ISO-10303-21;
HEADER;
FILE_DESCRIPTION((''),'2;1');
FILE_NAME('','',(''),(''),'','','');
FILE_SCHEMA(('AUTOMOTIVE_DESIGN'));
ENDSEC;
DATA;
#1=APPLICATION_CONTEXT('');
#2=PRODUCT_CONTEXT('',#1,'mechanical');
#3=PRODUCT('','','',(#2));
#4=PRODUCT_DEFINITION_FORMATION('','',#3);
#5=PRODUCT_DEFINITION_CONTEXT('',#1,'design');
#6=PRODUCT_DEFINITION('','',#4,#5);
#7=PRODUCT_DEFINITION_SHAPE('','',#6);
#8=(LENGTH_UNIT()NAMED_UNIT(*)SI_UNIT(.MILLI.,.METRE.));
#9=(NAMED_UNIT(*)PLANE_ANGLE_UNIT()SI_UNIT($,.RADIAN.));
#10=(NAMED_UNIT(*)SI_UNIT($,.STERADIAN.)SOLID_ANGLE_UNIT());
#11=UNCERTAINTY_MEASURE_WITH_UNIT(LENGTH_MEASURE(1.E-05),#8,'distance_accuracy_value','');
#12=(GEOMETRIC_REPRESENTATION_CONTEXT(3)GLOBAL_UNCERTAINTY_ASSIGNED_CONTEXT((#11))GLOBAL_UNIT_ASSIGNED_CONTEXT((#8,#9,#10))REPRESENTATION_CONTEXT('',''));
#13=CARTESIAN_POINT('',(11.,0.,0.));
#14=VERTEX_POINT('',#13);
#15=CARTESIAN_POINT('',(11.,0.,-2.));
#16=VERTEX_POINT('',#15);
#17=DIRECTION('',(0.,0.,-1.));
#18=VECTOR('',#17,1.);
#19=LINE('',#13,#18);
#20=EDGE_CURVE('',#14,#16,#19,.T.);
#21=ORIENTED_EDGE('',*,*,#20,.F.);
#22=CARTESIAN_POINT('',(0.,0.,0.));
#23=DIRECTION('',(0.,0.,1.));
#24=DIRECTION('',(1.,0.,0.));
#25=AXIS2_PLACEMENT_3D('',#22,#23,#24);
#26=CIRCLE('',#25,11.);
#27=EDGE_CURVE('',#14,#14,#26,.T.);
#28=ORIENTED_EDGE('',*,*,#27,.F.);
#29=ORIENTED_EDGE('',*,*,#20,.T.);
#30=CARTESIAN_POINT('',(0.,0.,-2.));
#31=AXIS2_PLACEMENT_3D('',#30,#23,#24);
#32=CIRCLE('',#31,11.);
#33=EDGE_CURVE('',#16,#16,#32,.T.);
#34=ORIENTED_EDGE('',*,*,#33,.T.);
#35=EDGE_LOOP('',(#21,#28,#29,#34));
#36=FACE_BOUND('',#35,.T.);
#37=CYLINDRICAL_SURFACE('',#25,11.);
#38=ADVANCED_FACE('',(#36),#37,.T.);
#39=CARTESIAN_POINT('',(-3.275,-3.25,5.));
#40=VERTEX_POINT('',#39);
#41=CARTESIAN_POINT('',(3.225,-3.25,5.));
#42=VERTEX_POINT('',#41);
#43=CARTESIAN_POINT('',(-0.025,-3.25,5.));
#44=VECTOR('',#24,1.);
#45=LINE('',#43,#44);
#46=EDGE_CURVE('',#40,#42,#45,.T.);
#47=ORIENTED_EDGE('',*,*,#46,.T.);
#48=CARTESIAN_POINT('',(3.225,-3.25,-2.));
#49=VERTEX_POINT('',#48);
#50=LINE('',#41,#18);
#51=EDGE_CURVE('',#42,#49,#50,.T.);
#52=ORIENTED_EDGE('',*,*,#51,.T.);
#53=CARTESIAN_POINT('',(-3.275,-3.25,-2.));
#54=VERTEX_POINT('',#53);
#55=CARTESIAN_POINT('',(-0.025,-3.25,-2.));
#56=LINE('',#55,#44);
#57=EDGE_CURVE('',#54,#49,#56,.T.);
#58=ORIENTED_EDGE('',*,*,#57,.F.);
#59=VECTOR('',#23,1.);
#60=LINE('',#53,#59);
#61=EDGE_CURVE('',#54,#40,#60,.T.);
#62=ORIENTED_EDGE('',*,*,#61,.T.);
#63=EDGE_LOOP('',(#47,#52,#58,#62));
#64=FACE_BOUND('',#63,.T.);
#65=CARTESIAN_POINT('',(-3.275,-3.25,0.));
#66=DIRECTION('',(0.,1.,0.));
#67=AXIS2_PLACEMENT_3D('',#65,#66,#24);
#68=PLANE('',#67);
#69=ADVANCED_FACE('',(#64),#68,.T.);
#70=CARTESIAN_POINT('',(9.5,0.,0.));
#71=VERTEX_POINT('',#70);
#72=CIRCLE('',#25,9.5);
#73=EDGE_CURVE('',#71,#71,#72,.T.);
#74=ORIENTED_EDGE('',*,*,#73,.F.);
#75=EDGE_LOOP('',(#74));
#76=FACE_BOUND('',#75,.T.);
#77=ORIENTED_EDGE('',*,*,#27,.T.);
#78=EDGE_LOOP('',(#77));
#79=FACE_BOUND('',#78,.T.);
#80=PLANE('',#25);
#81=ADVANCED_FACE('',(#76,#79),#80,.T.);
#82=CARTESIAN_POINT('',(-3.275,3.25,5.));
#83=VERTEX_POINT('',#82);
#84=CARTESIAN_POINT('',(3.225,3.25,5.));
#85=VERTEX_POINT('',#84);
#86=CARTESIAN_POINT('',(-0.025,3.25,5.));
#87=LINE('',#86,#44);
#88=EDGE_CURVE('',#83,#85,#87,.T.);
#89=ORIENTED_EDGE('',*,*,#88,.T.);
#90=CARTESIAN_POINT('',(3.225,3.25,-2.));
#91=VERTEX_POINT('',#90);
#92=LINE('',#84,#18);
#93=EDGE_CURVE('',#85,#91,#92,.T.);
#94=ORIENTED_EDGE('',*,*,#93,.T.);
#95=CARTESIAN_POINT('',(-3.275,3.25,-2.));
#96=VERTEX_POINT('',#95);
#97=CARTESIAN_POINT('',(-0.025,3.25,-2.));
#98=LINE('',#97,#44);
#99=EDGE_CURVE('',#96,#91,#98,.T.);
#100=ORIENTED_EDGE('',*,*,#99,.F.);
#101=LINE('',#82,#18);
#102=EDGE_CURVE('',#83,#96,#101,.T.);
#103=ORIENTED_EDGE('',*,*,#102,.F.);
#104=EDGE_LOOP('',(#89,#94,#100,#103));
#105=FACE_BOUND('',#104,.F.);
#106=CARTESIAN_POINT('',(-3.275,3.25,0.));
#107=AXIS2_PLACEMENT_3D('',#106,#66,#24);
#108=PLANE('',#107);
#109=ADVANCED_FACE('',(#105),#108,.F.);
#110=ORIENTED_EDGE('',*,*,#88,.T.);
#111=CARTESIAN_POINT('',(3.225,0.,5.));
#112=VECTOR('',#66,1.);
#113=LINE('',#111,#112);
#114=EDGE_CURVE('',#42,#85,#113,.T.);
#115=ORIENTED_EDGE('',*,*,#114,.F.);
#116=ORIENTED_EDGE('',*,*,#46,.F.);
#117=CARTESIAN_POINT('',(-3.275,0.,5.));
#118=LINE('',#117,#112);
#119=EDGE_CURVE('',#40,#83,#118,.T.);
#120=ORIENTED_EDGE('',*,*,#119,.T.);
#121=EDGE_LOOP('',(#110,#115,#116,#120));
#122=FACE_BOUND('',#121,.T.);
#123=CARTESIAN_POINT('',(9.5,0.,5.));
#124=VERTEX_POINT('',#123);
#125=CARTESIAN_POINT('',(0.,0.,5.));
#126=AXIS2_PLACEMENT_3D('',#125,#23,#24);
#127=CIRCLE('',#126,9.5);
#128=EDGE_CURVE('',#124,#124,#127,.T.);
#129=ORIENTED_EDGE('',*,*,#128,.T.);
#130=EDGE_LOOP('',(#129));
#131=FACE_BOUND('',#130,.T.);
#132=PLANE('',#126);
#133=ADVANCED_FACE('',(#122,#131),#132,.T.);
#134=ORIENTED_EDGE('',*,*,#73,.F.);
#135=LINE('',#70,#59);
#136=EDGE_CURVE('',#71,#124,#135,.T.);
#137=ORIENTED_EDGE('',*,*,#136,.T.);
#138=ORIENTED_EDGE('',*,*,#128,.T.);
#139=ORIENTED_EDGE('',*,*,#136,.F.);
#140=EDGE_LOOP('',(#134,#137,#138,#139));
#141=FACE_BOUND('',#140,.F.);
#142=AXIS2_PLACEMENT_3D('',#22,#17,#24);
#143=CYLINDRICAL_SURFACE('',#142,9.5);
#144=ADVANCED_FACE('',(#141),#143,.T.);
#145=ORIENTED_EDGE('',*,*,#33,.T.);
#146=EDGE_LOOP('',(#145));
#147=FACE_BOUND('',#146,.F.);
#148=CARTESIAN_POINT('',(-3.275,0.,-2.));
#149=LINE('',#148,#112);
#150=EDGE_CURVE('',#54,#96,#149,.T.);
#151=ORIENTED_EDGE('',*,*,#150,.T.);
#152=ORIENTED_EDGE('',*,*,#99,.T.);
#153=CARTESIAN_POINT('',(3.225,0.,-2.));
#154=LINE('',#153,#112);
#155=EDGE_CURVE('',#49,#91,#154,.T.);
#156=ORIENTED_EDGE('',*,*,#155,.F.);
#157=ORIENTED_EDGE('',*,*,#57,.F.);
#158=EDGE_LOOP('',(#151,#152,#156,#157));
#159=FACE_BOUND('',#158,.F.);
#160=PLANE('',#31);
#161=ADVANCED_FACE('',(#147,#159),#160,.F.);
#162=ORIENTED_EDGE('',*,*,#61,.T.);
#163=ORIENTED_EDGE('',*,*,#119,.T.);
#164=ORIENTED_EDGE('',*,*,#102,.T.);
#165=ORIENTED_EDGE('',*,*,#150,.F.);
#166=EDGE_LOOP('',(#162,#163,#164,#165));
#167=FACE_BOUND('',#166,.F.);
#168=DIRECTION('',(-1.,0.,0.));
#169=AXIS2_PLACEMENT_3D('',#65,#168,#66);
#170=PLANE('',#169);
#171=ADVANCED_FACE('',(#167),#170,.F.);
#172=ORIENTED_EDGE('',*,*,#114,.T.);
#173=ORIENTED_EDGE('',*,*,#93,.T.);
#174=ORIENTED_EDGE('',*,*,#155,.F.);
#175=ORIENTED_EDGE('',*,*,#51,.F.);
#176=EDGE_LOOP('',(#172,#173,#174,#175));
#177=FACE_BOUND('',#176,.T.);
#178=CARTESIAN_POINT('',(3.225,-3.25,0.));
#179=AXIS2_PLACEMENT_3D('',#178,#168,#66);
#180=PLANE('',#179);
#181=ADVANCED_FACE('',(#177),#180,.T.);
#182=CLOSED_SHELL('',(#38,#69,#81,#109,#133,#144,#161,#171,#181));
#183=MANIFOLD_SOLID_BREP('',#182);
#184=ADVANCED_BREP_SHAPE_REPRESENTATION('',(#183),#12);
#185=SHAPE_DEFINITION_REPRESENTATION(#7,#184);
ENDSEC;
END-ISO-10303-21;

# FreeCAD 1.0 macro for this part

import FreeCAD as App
import Part
import Sketcher
Q = App.Units.Quantity


def add_polygon(sketch, points):
    """Adds a closed chain of lines whose ends are joined by coincident constraints."""
    first, n = sketch.GeometryCount, len(points)
    for a, b in zip(points, points[1:] + points[:1]):
        sketch.addGeometry(Part.LineSegment(App.Vector(*a, 0), App.Vector(*b, 0)), False)
    for i in range(n):
        sketch.addConstraint(Sketcher.Constraint("Coincident", first + i, 2, first + (i + 1) % n, 1))

doc = App.newDocument("Part")
body = doc.addObject("PartDesign::Body", "Body")

sketch1 = body.newObject("Sketcher::SketchObject", "Sketch")
sketch1.AttachmentSupport = (doc.getObject("XY_Plane"), [""])
sketch1.MapMode = "FlatFace"
sketch1.addGeometry(Part.Circle(App.Vector(0, 0, 0), App.Vector(0, 0, 1), 11), False)
add_polygon(sketch1, [(3.225, -3.25), (-3.275, -3.25), (-3.275, 3.25), (3.225, 3.25)])
sketch1.addConstraint([
    Sketcher.Constraint("Horizontal", 1),
    Sketcher.Constraint("Vertical", 2),
    Sketcher.Constraint("Horizontal", 3),
    Sketcher.Constraint("Vertical", 4),
    Sketcher.Constraint("Coincident", 0, 3, -1, 1),
    Sketcher.Constraint("Equal", 3, 2),
    Sketcher.Constraint("Diameter", 0, Q("22 mm")),
    Sketcher.Constraint("DistanceX", 1, 2, 1, 1, Q("6.5 mm")),
    Sketcher.Constraint("DistanceY", 1, 2, -1, 1, Q("3.25 mm")),
    Sketcher.Constraint("DistanceX", 1, 2, -1, 1, Q("3.275 mm")),
])
pad1 = body.newObject("PartDesign::Pad", "Pad")
pad1.Profile = sketch1
pad1.Length = 2
pad1.Reversed = True

sketch2 = body.newObject("Sketcher::SketchObject", "Sketch001")
sketch2.AttachmentSupport = (doc.getObject("XY_Plane"), [""])
sketch2.MapMode = "FlatFace"
sketch2.addGeometry(Part.Circle(App.Vector(0, 0, 0), App.Vector(0, 0, 1), 9.5), False)
add_polygon(sketch2, [(3.225, -3.25), (-3.275, -3.25), (-3.275, 3.25), (3.225, 3.25)])
sketch2.addConstraint([
    Sketcher.Constraint("Horizontal", 1),
    Sketcher.Constraint("Vertical", 2),
    Sketcher.Constraint("Horizontal", 3),
    Sketcher.Constraint("Vertical", 4),
    Sketcher.Constraint("Coincident", 0, 3, -1, 1),
    Sketcher.Constraint("Equal", 3, 2),
    Sketcher.Constraint("Diameter", 0, Q("19 mm")),
    Sketcher.Constraint("DistanceX", 1, 2, 1, 1, Q("6.5 mm")),
    Sketcher.Constraint("DistanceY", 1, 2, -1, 1, Q("3.25 mm")),
    Sketcher.Constraint("DistanceX", 1, 2, -1, 1, Q("3.275 mm")),
])
pad2 = body.newObject("PartDesign::Pad", "Pad001")
pad2.Profile = sketch2
pad2.Length = 5

doc.recompute()
